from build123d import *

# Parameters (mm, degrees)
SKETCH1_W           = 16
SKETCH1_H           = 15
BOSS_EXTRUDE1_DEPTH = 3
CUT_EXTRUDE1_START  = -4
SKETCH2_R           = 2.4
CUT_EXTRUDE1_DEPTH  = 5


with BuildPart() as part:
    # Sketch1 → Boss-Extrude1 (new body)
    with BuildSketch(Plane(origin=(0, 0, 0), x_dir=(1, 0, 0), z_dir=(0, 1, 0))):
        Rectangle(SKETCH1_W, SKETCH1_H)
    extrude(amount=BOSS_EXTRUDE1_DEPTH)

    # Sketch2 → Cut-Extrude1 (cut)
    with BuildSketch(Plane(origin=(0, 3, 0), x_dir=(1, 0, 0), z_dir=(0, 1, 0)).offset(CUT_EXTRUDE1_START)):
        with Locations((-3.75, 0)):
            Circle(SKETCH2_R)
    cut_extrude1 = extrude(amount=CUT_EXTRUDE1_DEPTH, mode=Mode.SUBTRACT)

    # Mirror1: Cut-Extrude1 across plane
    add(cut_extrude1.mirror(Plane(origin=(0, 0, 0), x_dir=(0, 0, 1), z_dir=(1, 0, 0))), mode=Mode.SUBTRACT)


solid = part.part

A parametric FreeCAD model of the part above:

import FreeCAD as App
import Part
import Sketcher

V = App.Vector


def add_polygon(sketch, points):
    """Adds a closed chain of lines whose ends are joined by coincident constraints."""
    first, n = sketch.GeometryCount, len(points)
    for a, b in zip(points, points[1:] + points[:1]):
        sketch.addGeometry(Part.LineSegment(App.Vector(*a, 0), App.Vector(*b, 0)), False)
    for i in range(n):
        sketch.addConstraint(Sketcher.Constraint("Coincident", first + i, 2, first + (i + 1) % n, 1))

doc = App.newDocument("Part")
body = doc.addObject("PartDesign::Body", "Body")

sketch1 = body.newObject("Sketcher::SketchObject", "Sketch")
sketch1.AttachmentSupport = (doc.getObject("XZ_Plane"), [""])
sketch1.MapMode = "FlatFace"
add_polygon(sketch1, [(-8, -7.5), (-8, 7.5), (8, 7.5), (8, -7.5)])
sketch1.addConstraint([
    Sketcher.Constraint("Vertical", 0),
    Sketcher.Constraint("Horizontal", 1),
    Sketcher.Constraint("Vertical", 2),
    Sketcher.Constraint("Horizontal", 3),
    Sketcher.Constraint("Symmetric", 0, 2, 2, 2, -1, 1),
    Sketcher.Constraint("DistanceX", 1, 1, 1, 2, 16.0),
    Sketcher.Constraint("DistanceY", 0, 1, 0, 2, 15.0),
])
pad1 = body.newObject("PartDesign::Pad", "Pad")
pad1.Profile = sketch1
pad1.Length = 3
pad1.Reversed = True

sketch2 = body.newObject("Sketcher::SketchObject", "Sketch001")
sketch2.AttachmentSupport = (doc.getObject("XZ_Plane"), [""])
sketch2.MapMode = "FlatFace"
sketch2.AttachmentOffset = App.Placement(V(0, 0, 1), App.Rotation())
sketch2.addGeometry(Part.Circle(V(-3.75, 0, 0), V(0, 0, 1), 2.4), False)
sketch2.addConstraint([
    Sketcher.Constraint("PointOnObject", 0, 3, -1),
    Sketcher.Constraint("Diameter", 0, 4.8),
    Sketcher.Constraint("DistanceX", 0, 3, -1, 1, 3.75),
])
pocket1 = body.newObject("PartDesign::Pocket", "Pocket")
pocket1.Profile = sketch2
pocket1.Length = 5
doc.recompute()

mirrored = body.newObject("PartDesign::Mirrored", "Mirrored")
mirrored.Originals = [pocket1]
mirrored.MirrorPlane = (doc.getObject("YZ_Plane"), [""])
body.Tip = mirrored

doc.recompute()
